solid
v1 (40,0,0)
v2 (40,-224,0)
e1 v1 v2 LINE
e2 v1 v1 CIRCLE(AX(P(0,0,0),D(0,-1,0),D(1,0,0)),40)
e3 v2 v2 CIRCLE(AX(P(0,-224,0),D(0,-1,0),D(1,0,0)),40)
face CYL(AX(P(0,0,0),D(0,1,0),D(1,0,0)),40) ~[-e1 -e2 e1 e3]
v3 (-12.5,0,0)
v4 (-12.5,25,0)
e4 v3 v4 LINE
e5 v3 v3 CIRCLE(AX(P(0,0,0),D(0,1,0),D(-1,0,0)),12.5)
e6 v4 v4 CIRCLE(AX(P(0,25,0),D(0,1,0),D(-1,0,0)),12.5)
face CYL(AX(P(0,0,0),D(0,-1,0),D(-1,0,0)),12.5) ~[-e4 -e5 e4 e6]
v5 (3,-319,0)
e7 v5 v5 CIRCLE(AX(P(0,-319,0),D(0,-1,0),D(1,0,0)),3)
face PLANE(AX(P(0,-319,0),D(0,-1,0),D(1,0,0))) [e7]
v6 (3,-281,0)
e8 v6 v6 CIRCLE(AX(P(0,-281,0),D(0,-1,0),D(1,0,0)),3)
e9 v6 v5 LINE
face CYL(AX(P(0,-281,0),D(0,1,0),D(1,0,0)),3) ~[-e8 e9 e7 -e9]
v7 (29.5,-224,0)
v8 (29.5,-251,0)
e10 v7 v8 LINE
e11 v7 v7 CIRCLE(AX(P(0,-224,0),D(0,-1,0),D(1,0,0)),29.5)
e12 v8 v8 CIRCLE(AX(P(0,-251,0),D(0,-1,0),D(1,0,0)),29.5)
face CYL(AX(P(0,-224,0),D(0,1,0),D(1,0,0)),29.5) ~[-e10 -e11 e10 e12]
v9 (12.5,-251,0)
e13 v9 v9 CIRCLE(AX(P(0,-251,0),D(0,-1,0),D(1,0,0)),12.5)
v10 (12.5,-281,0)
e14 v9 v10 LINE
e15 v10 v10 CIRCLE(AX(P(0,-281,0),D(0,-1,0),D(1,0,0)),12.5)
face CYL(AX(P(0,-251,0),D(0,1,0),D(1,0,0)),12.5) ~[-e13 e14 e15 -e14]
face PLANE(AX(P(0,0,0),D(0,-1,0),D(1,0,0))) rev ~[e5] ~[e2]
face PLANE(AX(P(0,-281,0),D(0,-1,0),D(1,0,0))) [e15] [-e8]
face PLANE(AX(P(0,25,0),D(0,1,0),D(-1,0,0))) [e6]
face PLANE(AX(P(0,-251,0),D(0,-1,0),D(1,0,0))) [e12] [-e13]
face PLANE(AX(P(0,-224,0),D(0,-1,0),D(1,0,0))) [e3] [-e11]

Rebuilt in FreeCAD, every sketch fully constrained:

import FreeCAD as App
import Part
import Sketcher
from FreeCAD import Vector

doc = App.newDocument("Part")
body = doc.addObject("PartDesign::Body", "Body")

# Sketch on XZ plane
sketch1 = doc.addObject("Sketcher::SketchObject", "Sketch")
body.addObject(sketch1)
sketch1.AttachmentSupport = (doc.XZ_Plane, [""])
sketch1.MapMode = "FlatFace"
sketch1.addGeometry(Part.Circle(Vector(0, 0, 0), Vector(0, 0, 1), 40), False)
sketch1.addConstraint([
    Sketcher.Constraint("Coincident", 0, 3, -1, 1),
    Sketcher.Constraint("Diameter", 0, 80.0),
])
pad1 = doc.addObject("PartDesign::Pad", "Pad")
body.addObject(pad1)
pad1.Profile = sketch1
pad1.Length = 224

# Sketch on XZ plane
sketch2 = doc.addObject("Sketcher::SketchObject", "Sketch001")
body.addObject(sketch2)
sketch2.AttachmentSupport = (doc.XZ_Plane, [""])
sketch2.MapMode = "FlatFace"
sketch2.AttachmentOffset = App.Placement(Vector(0, 0, 224), App.Rotation())
sketch2.addGeometry(Part.Circle(Vector(0, 0, 0), Vector(0, 0, 1), 30), False)
sketch2.addConstraint([
    Sketcher.Constraint("Coincident", 0, 3, -1, 1),
    Sketcher.Constraint("Diameter", 0, 59.0),
])
pad2 = doc.addObject("PartDesign::Pad", "Pad001")
body.addObject(pad2)
pad2.Profile = sketch2
pad2.Length = 27

# Sketch on XZ plane
sketch3 = doc.addObject("Sketcher::SketchObject", "Sketch002")
body.addObject(sketch3)
sketch3.AttachmentSupport = (doc.XZ_Plane, [""])
sketch3.MapMode = "FlatFace"
sketch3.AttachmentOffset = App.Placement(Vector(0, 0, 251), App.Rotation())
sketch3.addGeometry(Part.Circle(Vector(0, 0, 0), Vector(0, 0, 1), 12), False)
sketch3.addConstraint([
    Sketcher.Constraint("Coincident", 0, 3, -1, 1),
    Sketcher.Constraint("Diameter", 0, 25.0),
])
pad3 = doc.addObject("PartDesign::Pad", "Pad002")
body.addObject(pad3)
pad3.Profile = sketch3
pad3.Length = 30

# Sketch on XZ plane
sketch4 = doc.addObject("Sketcher::SketchObject", "Sketch003")
body.addObject(sketch4)
sketch4.AttachmentSupport = (doc.XZ_Plane, [""])
sketch4.MapMode = "FlatFace"
sketch4.addGeometry(Part.Circle(Vector(0, 0, 0), Vector(0, 0, 1), 12), False)
sketch4.addConstraint([
    Sketcher.Constraint("Coincident", 0, 3, -1, 1),
    Sketcher.Constraint("Diameter", 0, 25.0),
])
pad4 = doc.addObject("PartDesign::Pad", "Pad003")
body.addObject(pad4)
pad4.Profile = sketch4
pad4.Length = 25
pad4.Reversed = True

# Sketch on XZ plane
sketch5 = doc.addObject("Sketcher::SketchObject", "Sketch004")
body.addObject(sketch5)
sketch5.AttachmentSupport = (doc.XZ_Plane, [""])
sketch5.MapMode = "FlatFace"
sketch5.AttachmentOffset = App.Placement(Vector(0, 0, 281), App.Rotation())
sketch5.addGeometry(Part.Circle(Vector(0, 0, 0), Vector(0, 0, 1), 3), False)
sketch5.addConstraint([
    Sketcher.Constraint("Coincident", 0, 3, -1, 1),
    Sketcher.Constraint("Diameter", 0, 6.0),
])
pad5 = doc.addObject("PartDesign::Pad", "Pad004")
body.addObject(pad5)
pad5.Profile = sketch5
pad5.Length = 38

doc.recompute()
